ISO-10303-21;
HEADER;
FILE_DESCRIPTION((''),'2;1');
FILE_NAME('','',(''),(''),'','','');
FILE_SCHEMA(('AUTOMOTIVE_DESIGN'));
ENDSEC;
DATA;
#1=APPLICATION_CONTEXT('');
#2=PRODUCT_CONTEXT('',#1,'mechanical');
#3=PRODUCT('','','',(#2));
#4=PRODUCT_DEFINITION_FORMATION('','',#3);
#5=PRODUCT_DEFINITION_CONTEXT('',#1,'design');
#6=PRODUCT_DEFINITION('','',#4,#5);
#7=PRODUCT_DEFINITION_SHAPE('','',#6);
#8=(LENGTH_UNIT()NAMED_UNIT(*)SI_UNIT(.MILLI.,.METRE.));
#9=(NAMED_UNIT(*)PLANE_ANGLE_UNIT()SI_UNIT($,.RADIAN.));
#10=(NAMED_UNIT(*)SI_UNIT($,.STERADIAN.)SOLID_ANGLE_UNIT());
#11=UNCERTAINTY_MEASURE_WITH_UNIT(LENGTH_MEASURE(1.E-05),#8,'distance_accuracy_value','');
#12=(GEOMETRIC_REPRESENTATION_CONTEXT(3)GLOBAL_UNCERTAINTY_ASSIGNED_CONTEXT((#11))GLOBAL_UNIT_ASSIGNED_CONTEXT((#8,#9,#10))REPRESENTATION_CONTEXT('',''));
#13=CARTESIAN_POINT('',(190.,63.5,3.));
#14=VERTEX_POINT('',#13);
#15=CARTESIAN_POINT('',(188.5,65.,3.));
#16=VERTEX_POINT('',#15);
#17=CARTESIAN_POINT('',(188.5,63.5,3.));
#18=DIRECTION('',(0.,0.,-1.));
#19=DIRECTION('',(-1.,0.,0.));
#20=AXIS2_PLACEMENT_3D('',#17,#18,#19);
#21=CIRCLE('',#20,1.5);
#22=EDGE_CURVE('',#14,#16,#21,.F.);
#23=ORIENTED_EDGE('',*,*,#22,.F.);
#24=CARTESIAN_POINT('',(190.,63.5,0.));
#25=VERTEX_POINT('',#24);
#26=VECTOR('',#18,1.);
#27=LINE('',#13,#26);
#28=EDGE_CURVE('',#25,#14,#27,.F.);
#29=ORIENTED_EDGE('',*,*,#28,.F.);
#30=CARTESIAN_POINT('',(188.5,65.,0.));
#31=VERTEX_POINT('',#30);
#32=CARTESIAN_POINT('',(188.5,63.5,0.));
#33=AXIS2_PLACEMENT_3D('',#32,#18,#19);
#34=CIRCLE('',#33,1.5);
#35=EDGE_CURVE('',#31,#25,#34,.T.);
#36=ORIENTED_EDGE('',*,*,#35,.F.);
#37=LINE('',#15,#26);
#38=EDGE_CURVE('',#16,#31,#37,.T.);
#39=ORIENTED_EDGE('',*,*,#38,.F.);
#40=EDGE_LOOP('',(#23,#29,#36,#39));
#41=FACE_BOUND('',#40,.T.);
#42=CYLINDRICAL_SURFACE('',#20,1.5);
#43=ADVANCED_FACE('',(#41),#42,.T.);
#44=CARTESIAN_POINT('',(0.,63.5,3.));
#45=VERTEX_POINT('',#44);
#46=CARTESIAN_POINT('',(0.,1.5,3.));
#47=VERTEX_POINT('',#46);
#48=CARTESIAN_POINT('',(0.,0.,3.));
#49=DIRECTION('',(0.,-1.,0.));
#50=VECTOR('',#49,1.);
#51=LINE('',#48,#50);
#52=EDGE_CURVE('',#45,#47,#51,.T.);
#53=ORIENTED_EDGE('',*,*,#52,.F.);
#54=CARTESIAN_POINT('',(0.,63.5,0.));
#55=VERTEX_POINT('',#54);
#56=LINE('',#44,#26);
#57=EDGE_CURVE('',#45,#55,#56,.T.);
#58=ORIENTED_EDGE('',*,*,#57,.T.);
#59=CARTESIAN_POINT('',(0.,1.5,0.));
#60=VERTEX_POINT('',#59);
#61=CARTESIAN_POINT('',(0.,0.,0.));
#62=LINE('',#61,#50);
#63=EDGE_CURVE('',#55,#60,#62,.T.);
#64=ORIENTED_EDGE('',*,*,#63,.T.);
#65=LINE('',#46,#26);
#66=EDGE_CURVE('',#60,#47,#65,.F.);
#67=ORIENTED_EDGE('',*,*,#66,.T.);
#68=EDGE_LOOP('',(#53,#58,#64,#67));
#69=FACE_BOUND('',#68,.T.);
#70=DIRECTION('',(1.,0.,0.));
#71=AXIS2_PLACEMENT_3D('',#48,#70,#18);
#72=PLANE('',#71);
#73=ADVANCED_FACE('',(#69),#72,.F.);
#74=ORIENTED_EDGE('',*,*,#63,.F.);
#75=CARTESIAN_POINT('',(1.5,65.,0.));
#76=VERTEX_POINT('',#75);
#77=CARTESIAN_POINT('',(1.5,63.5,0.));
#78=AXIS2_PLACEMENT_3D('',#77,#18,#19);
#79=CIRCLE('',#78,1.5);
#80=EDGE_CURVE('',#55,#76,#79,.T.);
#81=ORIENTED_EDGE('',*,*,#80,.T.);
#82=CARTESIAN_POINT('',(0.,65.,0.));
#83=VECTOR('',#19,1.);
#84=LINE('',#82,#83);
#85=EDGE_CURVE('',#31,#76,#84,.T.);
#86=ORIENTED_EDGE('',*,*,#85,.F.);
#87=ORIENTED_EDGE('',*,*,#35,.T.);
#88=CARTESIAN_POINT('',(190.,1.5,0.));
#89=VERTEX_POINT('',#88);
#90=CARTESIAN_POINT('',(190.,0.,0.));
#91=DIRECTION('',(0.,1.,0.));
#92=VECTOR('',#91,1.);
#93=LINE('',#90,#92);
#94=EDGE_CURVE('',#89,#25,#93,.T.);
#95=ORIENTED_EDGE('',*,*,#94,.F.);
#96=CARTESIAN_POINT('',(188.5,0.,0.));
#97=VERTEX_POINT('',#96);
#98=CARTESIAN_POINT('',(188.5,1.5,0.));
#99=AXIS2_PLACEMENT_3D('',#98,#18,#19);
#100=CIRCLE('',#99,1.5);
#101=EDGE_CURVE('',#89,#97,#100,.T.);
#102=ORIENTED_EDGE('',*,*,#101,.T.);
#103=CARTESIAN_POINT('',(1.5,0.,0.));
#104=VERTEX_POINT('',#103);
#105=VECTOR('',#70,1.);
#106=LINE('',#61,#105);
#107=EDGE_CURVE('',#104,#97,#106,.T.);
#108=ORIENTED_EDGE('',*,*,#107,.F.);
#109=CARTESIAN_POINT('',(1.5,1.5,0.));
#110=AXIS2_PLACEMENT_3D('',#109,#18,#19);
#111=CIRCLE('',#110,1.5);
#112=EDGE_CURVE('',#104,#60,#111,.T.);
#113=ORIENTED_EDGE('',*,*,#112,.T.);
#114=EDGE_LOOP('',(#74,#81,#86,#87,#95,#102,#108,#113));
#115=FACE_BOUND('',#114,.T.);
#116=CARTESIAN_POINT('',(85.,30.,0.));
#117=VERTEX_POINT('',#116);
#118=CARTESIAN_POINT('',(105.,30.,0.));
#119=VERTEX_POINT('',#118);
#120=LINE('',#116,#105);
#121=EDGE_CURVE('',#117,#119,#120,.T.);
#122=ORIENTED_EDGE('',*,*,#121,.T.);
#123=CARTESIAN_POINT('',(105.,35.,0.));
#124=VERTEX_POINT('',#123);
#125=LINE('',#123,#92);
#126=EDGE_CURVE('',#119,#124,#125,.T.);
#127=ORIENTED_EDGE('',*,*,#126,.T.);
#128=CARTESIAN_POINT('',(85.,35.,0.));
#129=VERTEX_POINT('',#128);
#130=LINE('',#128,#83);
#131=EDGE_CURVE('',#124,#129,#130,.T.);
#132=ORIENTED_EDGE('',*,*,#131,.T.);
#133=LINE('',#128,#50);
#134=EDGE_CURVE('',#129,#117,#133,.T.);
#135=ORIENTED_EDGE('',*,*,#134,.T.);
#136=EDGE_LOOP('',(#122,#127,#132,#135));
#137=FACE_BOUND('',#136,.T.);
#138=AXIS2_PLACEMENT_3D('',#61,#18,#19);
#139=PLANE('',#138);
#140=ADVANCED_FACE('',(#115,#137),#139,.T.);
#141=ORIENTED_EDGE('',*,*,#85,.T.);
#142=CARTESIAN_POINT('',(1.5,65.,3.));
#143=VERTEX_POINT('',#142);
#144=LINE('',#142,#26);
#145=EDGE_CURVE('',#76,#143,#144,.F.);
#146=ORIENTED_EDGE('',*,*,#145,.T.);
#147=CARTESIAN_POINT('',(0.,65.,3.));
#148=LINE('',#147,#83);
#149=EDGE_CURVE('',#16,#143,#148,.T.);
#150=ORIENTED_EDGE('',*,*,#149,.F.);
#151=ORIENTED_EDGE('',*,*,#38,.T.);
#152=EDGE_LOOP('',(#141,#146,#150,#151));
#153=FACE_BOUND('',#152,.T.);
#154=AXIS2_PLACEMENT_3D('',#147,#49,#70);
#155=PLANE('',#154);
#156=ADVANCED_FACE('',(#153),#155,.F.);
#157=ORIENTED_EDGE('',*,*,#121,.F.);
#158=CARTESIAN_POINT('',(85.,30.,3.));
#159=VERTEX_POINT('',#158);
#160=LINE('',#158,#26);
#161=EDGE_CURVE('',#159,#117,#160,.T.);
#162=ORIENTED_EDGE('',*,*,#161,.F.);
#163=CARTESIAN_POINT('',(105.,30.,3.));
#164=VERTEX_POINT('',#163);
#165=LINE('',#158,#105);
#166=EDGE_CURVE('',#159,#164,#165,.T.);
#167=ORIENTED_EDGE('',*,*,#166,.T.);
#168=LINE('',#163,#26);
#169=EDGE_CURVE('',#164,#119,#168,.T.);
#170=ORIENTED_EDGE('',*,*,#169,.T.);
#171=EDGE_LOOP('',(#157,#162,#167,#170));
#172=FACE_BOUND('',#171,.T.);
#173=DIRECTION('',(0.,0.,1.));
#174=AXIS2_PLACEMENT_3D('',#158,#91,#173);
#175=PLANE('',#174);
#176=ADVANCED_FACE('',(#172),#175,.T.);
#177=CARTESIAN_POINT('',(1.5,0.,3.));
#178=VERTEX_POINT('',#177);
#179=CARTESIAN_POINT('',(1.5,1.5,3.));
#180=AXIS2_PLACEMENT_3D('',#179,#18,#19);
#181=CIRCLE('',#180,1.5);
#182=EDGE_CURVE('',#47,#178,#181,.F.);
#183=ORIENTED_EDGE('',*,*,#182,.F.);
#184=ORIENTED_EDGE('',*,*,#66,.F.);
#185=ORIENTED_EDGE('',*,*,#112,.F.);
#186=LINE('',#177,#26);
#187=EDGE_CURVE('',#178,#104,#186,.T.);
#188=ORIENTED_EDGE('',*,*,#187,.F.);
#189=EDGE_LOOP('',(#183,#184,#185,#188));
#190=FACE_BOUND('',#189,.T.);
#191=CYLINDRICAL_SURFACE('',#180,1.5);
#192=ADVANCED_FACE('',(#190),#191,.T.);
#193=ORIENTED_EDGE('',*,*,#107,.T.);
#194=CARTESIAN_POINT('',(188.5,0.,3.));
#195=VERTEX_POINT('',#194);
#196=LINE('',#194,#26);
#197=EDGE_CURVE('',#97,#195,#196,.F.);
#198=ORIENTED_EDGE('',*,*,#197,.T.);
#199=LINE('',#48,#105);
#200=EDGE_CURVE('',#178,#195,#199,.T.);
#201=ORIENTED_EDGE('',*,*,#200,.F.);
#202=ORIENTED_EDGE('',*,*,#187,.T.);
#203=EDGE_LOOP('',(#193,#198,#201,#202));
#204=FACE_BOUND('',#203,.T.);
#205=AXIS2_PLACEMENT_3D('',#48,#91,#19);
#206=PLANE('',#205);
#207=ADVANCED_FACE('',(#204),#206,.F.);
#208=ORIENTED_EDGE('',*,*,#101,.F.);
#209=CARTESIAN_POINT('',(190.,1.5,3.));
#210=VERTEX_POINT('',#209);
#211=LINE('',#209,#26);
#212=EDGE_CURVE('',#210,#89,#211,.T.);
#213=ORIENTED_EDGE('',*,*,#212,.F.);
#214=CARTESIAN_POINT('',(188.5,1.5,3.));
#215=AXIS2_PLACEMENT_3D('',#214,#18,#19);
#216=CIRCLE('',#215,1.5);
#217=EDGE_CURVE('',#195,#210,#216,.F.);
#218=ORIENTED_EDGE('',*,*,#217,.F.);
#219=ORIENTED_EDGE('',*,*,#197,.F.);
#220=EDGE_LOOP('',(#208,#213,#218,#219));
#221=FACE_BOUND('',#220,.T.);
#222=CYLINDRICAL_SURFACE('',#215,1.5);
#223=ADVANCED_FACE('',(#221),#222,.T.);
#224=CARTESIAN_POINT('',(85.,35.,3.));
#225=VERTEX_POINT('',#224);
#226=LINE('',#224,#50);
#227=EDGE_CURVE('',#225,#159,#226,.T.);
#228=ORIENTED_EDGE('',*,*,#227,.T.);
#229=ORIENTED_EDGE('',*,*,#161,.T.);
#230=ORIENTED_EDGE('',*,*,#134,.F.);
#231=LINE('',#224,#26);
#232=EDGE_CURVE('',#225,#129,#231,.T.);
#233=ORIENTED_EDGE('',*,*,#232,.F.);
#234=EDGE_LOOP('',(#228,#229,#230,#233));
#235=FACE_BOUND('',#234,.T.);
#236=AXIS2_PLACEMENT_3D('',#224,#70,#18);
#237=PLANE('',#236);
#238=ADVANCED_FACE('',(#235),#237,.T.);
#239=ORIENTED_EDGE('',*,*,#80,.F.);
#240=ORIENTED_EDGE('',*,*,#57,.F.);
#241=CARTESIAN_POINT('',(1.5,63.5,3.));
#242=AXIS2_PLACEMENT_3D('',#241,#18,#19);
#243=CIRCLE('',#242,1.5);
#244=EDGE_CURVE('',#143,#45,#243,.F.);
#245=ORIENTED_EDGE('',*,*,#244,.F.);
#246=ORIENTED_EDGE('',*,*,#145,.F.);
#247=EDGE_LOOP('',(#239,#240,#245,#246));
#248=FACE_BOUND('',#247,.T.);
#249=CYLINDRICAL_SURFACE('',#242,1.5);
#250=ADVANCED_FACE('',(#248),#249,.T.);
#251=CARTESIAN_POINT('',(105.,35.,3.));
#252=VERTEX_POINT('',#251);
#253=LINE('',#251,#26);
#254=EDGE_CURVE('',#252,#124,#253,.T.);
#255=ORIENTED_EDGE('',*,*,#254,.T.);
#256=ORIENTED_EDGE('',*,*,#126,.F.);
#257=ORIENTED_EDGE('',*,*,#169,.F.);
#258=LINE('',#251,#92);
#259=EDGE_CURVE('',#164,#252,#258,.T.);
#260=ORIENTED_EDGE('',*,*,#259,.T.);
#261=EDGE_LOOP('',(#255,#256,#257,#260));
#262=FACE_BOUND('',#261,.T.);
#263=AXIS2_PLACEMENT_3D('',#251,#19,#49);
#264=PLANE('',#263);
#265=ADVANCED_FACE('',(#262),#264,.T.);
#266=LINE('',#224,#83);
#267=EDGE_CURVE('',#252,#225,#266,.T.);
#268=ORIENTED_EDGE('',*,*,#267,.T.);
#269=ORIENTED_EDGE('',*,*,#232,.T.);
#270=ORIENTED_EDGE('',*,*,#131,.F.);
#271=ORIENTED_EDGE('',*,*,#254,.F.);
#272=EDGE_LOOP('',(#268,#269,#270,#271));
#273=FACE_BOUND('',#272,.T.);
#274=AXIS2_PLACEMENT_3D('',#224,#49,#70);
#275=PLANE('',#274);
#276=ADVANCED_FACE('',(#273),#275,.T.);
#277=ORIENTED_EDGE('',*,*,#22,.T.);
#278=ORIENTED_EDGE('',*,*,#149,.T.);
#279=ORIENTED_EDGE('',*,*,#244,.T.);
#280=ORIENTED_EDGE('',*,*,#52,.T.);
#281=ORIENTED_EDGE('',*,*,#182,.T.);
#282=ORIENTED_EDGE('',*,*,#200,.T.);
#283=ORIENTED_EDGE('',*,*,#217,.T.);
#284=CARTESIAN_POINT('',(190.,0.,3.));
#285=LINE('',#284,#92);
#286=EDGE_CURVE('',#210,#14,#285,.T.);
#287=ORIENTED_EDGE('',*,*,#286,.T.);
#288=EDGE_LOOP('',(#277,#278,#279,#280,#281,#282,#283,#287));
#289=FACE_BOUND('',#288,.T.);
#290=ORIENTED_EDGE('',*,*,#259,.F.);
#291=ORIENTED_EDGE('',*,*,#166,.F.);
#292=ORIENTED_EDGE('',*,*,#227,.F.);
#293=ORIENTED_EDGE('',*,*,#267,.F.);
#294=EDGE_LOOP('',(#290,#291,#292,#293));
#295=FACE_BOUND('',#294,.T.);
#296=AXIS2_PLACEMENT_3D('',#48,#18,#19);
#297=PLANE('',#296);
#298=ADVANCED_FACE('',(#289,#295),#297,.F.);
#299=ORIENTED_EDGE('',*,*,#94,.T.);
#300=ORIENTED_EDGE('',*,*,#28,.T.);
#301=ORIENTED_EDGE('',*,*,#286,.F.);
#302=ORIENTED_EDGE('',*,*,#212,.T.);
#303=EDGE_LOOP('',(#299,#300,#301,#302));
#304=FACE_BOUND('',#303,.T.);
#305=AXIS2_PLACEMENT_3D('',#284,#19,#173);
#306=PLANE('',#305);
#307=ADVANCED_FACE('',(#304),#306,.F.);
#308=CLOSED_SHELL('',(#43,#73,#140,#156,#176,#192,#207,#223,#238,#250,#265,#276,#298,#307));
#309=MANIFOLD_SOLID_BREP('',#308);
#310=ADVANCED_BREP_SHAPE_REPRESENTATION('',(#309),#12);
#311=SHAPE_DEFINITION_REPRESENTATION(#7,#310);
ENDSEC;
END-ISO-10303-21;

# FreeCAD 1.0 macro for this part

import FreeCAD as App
import Part
import Sketcher
from FreeCAD import Vector
Q = App.Units.Quantity


def edges_at(feature, points):
    """Names of the edges that pass closest to the given points."""
    edges = feature.Shape.Edges
    near = lambda p: min(range(len(edges)), key=lambda i: edges[i].distToShape(Part.Vertex(*p))[0])
    return sorted({f"Edge{near(p) + 1}" for p in points})


def add_polygon(sketch, points):
    """Adds a closed chain of lines whose ends are joined by coincident constraints."""
    first, n = sketch.GeometryCount, len(points)
    for a, b in zip(points, points[1:] + points[:1]):
        sketch.addGeometry(Part.LineSegment(App.Vector(*a, 0), App.Vector(*b, 0)), False)
    for i in range(n):
        sketch.addConstraint(Sketcher.Constraint("Coincident", first + i, 2, first + (i + 1) % n, 1))

doc = App.newDocument("Part")
body = doc.addObject("PartDesign::Body", "Body")

# Sketch on XY plane
sketch1 = body.newObject("Sketcher::SketchObject", "Sketch")
sketch1.AttachmentSupport = (doc.getObject("XY_Plane"), [""])
sketch1.MapMode = "FlatFace"
add_polygon(sketch1, [(0, 65), (0, 0), (190, 0), (190, 65)])  # lines 0-3
add_polygon(sketch1, [(105, 30), (85, 30), (85, 35), (105, 35)])  # lines 4-7
sketch1.addConstraint([
    Sketcher.Constraint("Vertical", 0),
    Sketcher.Constraint("Horizontal", 1),
    Sketcher.Constraint("Vertical", 2),
    Sketcher.Constraint("Horizontal", 3),
    Sketcher.Constraint("Horizontal", 4),
    Sketcher.Constraint("Vertical", 5),
    Sketcher.Constraint("Horizontal", 6),
    Sketcher.Constraint("Vertical", 7),
    Sketcher.Constraint("Coincident", 0, 2, -1, 1),
    Sketcher.Constraint("DistanceX", 1, 1, 1, 2, Q("190 mm")),
    Sketcher.Constraint("DistanceX", 4, 2, 4, 1, Q("20 mm")),
    Sketcher.Constraint("DistanceY", 0, 2, 0, 1, Q("65 mm")),
    Sketcher.Constraint("DistanceY", 5, 1, 5, 2, Q("5 mm")),
    Sketcher.Constraint("DistanceX", -1, 1, 4, 2, Q("85 mm")),
    Sketcher.Constraint("DistanceY", -1, 1, 4, 2, Q("30 mm")),
])
pad1 = body.newObject("PartDesign::Pad", "Pad")
pad1.Profile = sketch1
pad1.Length = 3
doc.recompute()

fillet = body.newObject("PartDesign::Fillet", "Fillet")
fillet.Base = (pad1, edges_at(pad1, [
    (0, 65, 1.5),
    (190, 65, 1.5),
    (190, 0, 1.5),
    (0, 0, 1.5),
]))
fillet.Radius = 1.5

doc.recompute()
